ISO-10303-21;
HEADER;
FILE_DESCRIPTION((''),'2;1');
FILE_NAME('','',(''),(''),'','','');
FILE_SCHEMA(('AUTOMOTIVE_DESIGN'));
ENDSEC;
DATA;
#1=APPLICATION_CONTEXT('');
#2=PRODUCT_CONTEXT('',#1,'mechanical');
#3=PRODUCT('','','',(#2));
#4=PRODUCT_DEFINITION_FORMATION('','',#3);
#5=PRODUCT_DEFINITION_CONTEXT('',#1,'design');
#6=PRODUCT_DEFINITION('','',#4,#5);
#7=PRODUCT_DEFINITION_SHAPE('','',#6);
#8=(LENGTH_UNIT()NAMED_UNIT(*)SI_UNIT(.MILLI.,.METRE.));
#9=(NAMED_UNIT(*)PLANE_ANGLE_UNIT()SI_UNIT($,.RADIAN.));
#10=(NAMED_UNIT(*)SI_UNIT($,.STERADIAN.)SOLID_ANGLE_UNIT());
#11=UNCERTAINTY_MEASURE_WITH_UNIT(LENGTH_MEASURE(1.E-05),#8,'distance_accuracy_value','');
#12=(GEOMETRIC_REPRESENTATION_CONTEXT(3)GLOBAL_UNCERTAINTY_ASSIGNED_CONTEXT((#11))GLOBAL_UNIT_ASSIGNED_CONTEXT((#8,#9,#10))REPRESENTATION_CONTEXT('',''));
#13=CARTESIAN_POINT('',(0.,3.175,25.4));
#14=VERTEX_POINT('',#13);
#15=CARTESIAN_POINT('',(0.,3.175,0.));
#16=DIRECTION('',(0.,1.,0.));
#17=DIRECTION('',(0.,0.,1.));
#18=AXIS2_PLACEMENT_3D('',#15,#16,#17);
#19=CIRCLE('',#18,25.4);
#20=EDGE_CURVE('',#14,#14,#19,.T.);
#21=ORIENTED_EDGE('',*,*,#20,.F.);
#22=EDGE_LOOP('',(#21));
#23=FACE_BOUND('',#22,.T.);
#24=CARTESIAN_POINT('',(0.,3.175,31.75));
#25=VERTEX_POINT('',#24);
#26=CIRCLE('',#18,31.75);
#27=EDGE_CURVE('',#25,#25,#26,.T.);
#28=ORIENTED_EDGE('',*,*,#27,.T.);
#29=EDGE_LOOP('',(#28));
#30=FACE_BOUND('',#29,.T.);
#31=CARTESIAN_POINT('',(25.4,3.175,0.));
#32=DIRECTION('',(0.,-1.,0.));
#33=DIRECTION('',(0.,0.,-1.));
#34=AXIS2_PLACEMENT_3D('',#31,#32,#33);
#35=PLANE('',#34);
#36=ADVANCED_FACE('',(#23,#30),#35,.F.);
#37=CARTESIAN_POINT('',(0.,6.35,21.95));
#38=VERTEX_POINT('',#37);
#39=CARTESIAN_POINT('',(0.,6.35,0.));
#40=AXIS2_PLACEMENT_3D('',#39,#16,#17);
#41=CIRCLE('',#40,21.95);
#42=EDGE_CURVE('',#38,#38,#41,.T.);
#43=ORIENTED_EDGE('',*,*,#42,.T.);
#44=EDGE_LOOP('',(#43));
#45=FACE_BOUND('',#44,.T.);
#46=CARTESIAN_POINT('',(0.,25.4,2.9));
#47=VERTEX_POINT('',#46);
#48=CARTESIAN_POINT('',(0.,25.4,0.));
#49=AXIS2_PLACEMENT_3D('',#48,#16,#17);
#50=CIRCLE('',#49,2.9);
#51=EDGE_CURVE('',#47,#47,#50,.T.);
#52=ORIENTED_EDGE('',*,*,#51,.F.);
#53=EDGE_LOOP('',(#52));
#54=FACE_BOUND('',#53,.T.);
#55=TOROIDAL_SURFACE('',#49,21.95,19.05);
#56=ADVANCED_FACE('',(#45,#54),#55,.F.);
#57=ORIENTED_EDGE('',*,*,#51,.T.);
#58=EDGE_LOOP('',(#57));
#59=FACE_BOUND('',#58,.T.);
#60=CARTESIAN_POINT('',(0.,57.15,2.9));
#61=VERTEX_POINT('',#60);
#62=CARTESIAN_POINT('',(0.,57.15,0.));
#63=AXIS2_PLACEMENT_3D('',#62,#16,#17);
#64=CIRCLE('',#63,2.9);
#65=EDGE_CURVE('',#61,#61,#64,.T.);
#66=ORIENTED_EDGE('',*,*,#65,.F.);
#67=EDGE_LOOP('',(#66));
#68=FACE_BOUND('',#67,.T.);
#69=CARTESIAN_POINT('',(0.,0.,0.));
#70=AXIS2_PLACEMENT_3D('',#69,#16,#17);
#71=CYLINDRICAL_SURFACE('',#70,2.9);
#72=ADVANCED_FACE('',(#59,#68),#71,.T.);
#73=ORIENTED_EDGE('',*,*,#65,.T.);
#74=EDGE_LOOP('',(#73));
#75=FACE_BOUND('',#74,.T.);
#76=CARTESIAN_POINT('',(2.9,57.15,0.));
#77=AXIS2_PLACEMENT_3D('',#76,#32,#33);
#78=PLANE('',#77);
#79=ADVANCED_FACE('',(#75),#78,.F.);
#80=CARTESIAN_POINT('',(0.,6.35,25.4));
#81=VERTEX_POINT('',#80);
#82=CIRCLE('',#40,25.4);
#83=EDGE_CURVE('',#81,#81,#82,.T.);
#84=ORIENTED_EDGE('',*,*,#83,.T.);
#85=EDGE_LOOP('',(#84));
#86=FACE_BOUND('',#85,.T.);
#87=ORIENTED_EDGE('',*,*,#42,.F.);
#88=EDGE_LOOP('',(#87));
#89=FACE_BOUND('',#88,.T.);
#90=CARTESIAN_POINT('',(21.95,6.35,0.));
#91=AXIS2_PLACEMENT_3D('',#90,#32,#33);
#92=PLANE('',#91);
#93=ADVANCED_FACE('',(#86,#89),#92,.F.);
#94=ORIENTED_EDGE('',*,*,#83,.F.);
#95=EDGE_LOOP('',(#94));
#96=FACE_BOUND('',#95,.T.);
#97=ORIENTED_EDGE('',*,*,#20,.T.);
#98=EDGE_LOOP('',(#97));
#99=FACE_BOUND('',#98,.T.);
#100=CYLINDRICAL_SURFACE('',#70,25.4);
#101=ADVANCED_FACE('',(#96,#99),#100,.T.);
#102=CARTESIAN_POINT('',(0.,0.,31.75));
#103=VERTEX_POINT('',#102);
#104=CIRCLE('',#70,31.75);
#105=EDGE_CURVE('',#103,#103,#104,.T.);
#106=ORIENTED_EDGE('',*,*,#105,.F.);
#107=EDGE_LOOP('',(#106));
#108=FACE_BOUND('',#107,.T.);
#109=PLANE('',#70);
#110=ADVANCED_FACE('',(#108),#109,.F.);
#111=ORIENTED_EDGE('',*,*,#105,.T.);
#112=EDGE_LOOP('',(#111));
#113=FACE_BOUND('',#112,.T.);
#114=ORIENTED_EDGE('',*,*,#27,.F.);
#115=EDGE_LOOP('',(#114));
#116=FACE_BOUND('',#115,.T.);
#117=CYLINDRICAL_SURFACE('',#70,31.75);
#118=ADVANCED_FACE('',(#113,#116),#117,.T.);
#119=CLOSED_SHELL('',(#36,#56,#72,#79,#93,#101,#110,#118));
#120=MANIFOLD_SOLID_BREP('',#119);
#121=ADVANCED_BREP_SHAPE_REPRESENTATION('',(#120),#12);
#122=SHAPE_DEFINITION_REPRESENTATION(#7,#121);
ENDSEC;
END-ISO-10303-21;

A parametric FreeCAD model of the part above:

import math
import FreeCAD as App
import Part
import Sketcher

V = App.Vector
Q = App.Units.Quantity

doc = App.newDocument("Part")
body = doc.addObject("PartDesign::Body", "Body")

sketch1 = doc.addObject("Sketcher::SketchObject", "Sketch")
body.addObject(sketch1)
sketch1.AttachmentSupport = (doc.XY_Plane, [""])
sketch1.MapMode = "FlatFace"
sketch1.addGeometry([
    Part.LineSegment(V(0, 0, 0), V(31.8, 0, 0)),
    Part.LineSegment(V(31.8, 0, 0), V(31.8, 3.2, 0)),
    Part.LineSegment(V(31.8, 3.2, 0), V(25.4, 3.2, 0)),
    Part.LineSegment(V(25.4, 3.2, 0), V(25.4, 6.3, 0)),
    Part.LineSegment(V(25.4, 6.3, 0), V(21.9, 6.3, 0)),
    Part.ArcOfCircle(Part.Circle(V(21.9, 25.4, 0), V(0, 0, 1), 19), math.radians(180), math.radians(270)),
    Part.LineSegment(V(2.9, 25.4, 0), V(2.9, 57.1, 0)),
    Part.LineSegment(V(2.9, 57.1, 0), V(0, 57.1, 0)),
    Part.LineSegment(V(0, 57.1, 0), V(0, 0, 0)),
], False)
sketch1.addConstraint([
    Sketcher.Constraint("Coincident", 0, 2, 1, 1),
    Sketcher.Constraint("Coincident", 1, 2, 2, 1),
    Sketcher.Constraint("Coincident", 2, 2, 3, 1),
    Sketcher.Constraint("Coincident", 3, 2, 4, 1),
    Sketcher.Constraint("Tangent", 4, 2, 5, 2),
    Sketcher.Constraint("Tangent", 5, 1, 6, 1),
    Sketcher.Constraint("Coincident", 6, 2, 7, 1),
    Sketcher.Constraint("Coincident", 7, 2, 8, 1),
    Sketcher.Constraint("Coincident", 8, 2, 0, 1),
    Sketcher.Constraint("Horizontal", 0),
    Sketcher.Constraint("Vertical", 1),
    Sketcher.Constraint("Horizontal", 2),
    Sketcher.Constraint("Vertical", 3),
    Sketcher.Constraint("Horizontal", 4),
    Sketcher.Constraint("Vertical", 6),
    Sketcher.Constraint("Horizontal", 7),
    Sketcher.Constraint("Vertical", 8),
    Sketcher.Constraint("Coincident", 8, 2, -1, 1),
    Sketcher.Constraint("Equal", 1, 3),
    Sketcher.Constraint("Equal", 0, 6),
    Sketcher.Constraint("Radius", 5, Q("0.75 in")),
    Sketcher.Constraint("DistanceY", -1, 1, 5, 3, Q("1 in")),
    Sketcher.Constraint("DistanceX", -1, 1, 2, 2, Q("1 in")),
    Sketcher.Constraint("DistanceY", 4, 2, 6, 2, Q("2 in")),
    Sketcher.Constraint("DistanceX", 4, 2, 4, 1, 3.45),
])
revolution = doc.addObject("PartDesign::Revolution", "Revolution")
body.addObject(revolution)
revolution.Profile = sketch1
revolution.ReferenceAxis = (sketch1, ["V_Axis"])
revolution.Angle = 360

doc.recompute()
